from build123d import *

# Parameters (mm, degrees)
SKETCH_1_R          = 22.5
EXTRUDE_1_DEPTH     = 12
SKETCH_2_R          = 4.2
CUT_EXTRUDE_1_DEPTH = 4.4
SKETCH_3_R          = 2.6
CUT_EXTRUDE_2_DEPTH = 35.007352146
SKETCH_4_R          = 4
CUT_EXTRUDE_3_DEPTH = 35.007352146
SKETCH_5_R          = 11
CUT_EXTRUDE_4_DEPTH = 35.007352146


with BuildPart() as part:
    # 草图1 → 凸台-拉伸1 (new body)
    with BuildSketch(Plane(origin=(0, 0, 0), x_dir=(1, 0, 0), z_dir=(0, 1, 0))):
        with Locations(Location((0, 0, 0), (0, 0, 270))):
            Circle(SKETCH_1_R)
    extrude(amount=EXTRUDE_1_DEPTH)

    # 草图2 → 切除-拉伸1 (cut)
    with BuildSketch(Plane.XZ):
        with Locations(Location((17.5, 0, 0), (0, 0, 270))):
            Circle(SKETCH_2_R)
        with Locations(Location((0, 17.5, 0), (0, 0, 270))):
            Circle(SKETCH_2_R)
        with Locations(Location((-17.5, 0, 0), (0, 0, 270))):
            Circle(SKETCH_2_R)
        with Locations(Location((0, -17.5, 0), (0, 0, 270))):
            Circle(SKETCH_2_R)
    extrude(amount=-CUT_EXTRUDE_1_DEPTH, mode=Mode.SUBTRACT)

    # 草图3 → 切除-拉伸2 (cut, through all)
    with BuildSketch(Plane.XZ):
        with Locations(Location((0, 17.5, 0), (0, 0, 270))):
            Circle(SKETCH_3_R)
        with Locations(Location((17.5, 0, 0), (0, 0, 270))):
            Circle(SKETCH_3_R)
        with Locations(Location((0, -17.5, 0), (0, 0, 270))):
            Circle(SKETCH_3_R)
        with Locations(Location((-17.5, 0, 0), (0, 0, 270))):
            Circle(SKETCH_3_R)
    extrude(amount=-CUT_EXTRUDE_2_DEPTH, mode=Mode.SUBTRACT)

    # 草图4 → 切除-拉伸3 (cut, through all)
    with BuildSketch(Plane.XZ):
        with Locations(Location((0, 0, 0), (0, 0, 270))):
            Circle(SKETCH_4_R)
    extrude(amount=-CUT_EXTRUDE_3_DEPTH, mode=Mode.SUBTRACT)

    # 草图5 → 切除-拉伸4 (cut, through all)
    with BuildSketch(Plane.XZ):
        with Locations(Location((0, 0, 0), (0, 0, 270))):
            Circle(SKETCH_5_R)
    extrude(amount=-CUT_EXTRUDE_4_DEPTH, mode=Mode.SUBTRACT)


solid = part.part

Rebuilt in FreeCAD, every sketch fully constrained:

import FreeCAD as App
import Part
import Sketcher

V = App.Vector

doc = App.newDocument("Part")
body = doc.addObject("PartDesign::Body", "Body")

# Sketch on XZ plane
sketch1 = body.newObject("Sketcher::SketchObject", "Sketch")
sketch1.AttachmentSupport = (doc.getObject("XZ_Plane"), [""])
sketch1.MapMode = "FlatFace"
sketch1.addGeometry(Part.Circle(V(0, 0, 0), V(0, 0, 1), 22), False)
sketch1.addConstraint([
    Sketcher.Constraint("Coincident", 0, 3, -1, 1),
    Sketcher.Constraint("Diameter", 0, 45.0),
])
pad1 = body.newObject("PartDesign::Pad", "Pad")
pad1.Profile = sketch1
pad1.Length = 12
pad1.Reversed = True

# Sketch on XZ plane
sketch2 = body.newObject("Sketcher::SketchObject", "Sketch001")
sketch2.AttachmentSupport = (doc.getObject("XZ_Plane"), [""])
sketch2.MapMode = "FlatFace"
sketch2.addGeometry([
    Part.Circle(V(17.5, 0, 0), V(0, 0, 1), 4.2),
    Part.Circle(V(0, 17.5, 0), V(0, 0, 1), 4.2),
    Part.Circle(V(-17.5, 0, 0), V(0, 0, 1), 4.2),
    Part.Circle(V(0, -17.5, 0), V(0, 0, 1), 4.2),
], False)
sketch2.addConstraint([
    Sketcher.Constraint("Equal", 0, 1),
    Sketcher.Constraint("Equal", 1, 2),
    Sketcher.Constraint("Equal", 2, 3),
    Sketcher.Constraint("Symmetric", 0, 3, 2, 3, -1, 1),
    Sketcher.Constraint("Symmetric", 1, 3, 3, 3, -1, 1),
    Sketcher.Constraint("PointOnObject", 0, 3, -1),
    Sketcher.Constraint("PointOnObject", 1, 3, -2),
    Sketcher.Constraint("Diameter", 0, 8.4),
    Sketcher.Constraint("DistanceX", 2, 3, 0, 3, 35.0),
    Sketcher.Constraint("DistanceY", 3, 3, 1, 3, 35.0),
])
pocket1 = body.newObject("PartDesign::Pocket", "Pocket")
pocket1.Profile = sketch2
pocket1.Length = 4.4

# Sketch on XZ plane
sketch3 = body.newObject("Sketcher::SketchObject", "Sketch002")
sketch3.AttachmentSupport = (doc.getObject("XZ_Plane"), [""])
sketch3.MapMode = "FlatFace"
sketch3.addGeometry([
    Part.Circle(V(0, 17.5, 0), V(0, 0, 1), 2.6),
    Part.Circle(V(17.5, 0, 0), V(0, 0, 1), 2.6),
    Part.Circle(V(0, -17.5, 0), V(0, 0, 1), 2.6),
    Part.Circle(V(-17.5, 0, 0), V(0, 0, 1), 2.6),
], False)
sketch3.addConstraint([
    Sketcher.Constraint("Equal", 0, 1),
    Sketcher.Constraint("Equal", 1, 2),
    Sketcher.Constraint("Equal", 2, 3),
    Sketcher.Constraint("Symmetric", 0, 3, 2, 3, -1, 1),
    Sketcher.Constraint("Symmetric", 1, 3, 3, 3, -1, 1),
    Sketcher.Constraint("PointOnObject", 0, 3, -2),
    Sketcher.Constraint("PointOnObject", 1, 3, -1),
    Sketcher.Constraint("Diameter", 0, 5.2),
    Sketcher.Constraint("DistanceY", 2, 3, 0, 3, 35.0),
    Sketcher.Constraint("DistanceX", 3, 3, 1, 3, 35.0),
])
pocket2 = body.newObject("PartDesign::Pocket", "Pocket001")
pocket2.Profile = sketch3
pocket2.Type = "ThroughAll"

# Sketch on XZ plane
sketch4 = body.newObject("Sketcher::SketchObject", "Sketch003")
sketch4.AttachmentSupport = (doc.getObject("XZ_Plane"), [""])
sketch4.MapMode = "FlatFace"
sketch4.addGeometry(Part.Circle(V(0, 0, 0), V(0, 0, 1), 4), False)
sketch4.addConstraint([
    Sketcher.Constraint("Coincident", 0, 3, -1, 1),
    Sketcher.Constraint("Diameter", 0, 8.0),
])
pocket3 = body.newObject("PartDesign::Pocket", "Pocket002")
pocket3.Profile = sketch4
pocket3.Type = "ThroughAll"

# Sketch on XZ plane
sketch5 = body.newObject("Sketcher::SketchObject", "Sketch004")
sketch5.AttachmentSupport = (doc.getObject("XZ_Plane"), [""])
sketch5.MapMode = "FlatFace"
sketch5.addGeometry(Part.Circle(V(0, 0, 0), V(0, 0, 1), 11), False)
sketch5.addConstraint([
    Sketcher.Constraint("Coincident", 0, 3, -1, 1),
    Sketcher.Constraint("Diameter", 0, 22.0),
])
pocket4 = body.newObject("PartDesign::Pocket", "Pocket003")
pocket4.Profile = sketch5
pocket4.Type = "ThroughAll"

doc.recompute()
